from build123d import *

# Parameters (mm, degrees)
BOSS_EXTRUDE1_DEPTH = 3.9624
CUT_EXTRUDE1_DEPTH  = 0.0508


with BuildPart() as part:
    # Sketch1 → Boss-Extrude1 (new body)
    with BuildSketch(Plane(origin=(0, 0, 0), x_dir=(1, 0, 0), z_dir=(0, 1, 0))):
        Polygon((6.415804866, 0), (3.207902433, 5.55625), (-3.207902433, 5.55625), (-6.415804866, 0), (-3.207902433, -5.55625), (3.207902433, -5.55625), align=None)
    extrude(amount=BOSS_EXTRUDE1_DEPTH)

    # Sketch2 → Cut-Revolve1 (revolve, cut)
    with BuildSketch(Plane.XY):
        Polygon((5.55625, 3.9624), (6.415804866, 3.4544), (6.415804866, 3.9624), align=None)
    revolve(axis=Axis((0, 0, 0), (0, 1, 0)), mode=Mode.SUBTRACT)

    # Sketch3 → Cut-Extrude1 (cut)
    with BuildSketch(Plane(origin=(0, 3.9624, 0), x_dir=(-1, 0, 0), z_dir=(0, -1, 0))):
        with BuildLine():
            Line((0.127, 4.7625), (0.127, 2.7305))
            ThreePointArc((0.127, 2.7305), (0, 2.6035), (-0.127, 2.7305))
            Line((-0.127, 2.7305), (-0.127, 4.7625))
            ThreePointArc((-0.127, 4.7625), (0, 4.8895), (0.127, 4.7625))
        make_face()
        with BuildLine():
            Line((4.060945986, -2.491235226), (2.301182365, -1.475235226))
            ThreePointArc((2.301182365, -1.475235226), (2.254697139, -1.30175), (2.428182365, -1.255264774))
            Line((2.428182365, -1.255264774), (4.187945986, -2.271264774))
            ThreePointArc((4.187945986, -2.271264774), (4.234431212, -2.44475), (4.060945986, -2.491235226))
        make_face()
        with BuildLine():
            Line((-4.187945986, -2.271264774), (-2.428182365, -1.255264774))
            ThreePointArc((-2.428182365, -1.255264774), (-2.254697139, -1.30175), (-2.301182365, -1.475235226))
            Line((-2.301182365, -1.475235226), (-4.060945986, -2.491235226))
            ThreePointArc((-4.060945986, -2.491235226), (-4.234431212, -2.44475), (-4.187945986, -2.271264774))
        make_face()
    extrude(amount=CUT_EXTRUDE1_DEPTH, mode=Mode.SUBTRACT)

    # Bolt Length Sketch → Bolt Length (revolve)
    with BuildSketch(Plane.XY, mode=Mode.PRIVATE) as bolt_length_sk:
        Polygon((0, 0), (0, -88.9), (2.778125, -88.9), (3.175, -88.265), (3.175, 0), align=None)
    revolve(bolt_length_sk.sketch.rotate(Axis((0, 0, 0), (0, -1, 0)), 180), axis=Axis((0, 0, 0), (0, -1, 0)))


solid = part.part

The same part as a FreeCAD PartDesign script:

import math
import FreeCAD as App
import Part
import Sketcher

V = App.Vector
Q = App.Units.Quantity


def add_polygon(sketch, points):
    """Adds a closed chain of lines whose ends are joined by coincident constraints."""
    first, n = sketch.GeometryCount, len(points)
    for a, b in zip(points, points[1:] + points[:1]):
        sketch.addGeometry(Part.LineSegment(App.Vector(*a, 0), App.Vector(*b, 0)), False)
    for i in range(n):
        sketch.addConstraint(Sketcher.Constraint("Coincident", first + i, 2, first + (i + 1) % n, 1))

doc = App.newDocument("Part")
body = doc.addObject("PartDesign::Body", "Body")

sketch1 = body.newObject("Sketcher::SketchObject", "Sketch")
sketch1.AttachmentSupport = (doc.getObject("XZ_Plane"), [""])
sketch1.MapMode = "FlatFace"
add_polygon(sketch1, [(6, 0), (3, -6), (-3, -6), (-6, 0), (-3, 6), (3, 6)])
sketch1.addConstraint(Sketcher.Constraint("Horizontal", 1))
sketch1.addConstraint(Sketcher.Constraint("Horizontal", 4))
sketch1.addConstraint(Sketcher.Constraint("Symmetric", 0, 2, 3, 2, -1, 1))
sketch1.addConstraint(Sketcher.Constraint("Symmetric", 2, 2, 5, 2, -1, 1))
sketch1.addConstraint(Sketcher.Constraint("PointOnObject", 2, 2, -1))
sketch1.addConstraint(Sketcher.Constraint("Parallel", 2, 5))
sketch1.addConstraint(Sketcher.Constraint("Vertical", 1, 2, 3, 2))
sketch1.addConstraint(Sketcher.Constraint("Angle", 0, Q("-120 deg")))
sketch1.addConstraint(Sketcher.Constraint("DistanceY", 0, 2, -1, 1, Q("0.21875 in")))
sketch1.addConstraint(Sketcher.Constraint("DistanceX", 1, 2, 1, 1, Q("6.415805 mm")))
pad1 = body.newObject("PartDesign::Pad", "Pad")
pad1.Profile = sketch1
pad1.Length = Q("0.156 in")
pad1.Reversed = True

sketch2 = body.newObject("Sketcher::SketchObject", "Sketch001")
sketch2.AttachmentSupport = (doc.getObject("XY_Plane"), [""])
sketch2.MapMode = "FlatFace"
add_polygon(sketch2, [(5.6, 4), (6.4, 3.5), (6.4, 4)])
sketch2.addConstraint(Sketcher.Constraint("Vertical", 1))
sketch2.addConstraint(Sketcher.Constraint("Horizontal", 2))
sketch2.addConstraint(Sketcher.Constraint("DistanceY", 1, 1, 1, 2, Q("0.02 in")))
sketch2.addConstraint(Sketcher.Constraint("DistanceY", -1, 1, 0, 2, Q("0.136 in")))
sketch2.addConstraint(Sketcher.Constraint("DistanceX", -1, 1, 2, 2, Q("0.21875 in")))
sketch2.addConstraint(Sketcher.Constraint("Distance", 0, Q("0.998448 mm")))
groove = body.newObject("PartDesign::Groove", "Groove")
groove.Profile = sketch2
groove.ReferenceAxis = (sketch2, ["V_Axis"])
groove.Angle = 360

sketch3 = body.newObject("Sketcher::SketchObject", "Sketch002")
sketch3.AttachmentSupport = (doc.getObject("XZ_Plane"), [""])
sketch3.MapMode = "FlatFace"
sketch3.AttachmentOffset = App.Placement(V(0, 0, -0.156 * 25.4), App.Rotation())
sketch3.addGeometry(Part.LineSegment(V(-0.13, -2.73, 0), V(-0.13, -4.76, 0)), False)
sketch3.addGeometry(Part.ArcOfCircle(Part.Circle(V(0, -4.76, 0), V(0, 0, 1), 0.13), math.radians(180), math.radians(360)), False)
sketch3.addGeometry(Part.LineSegment(V(0.13, -4.76, 0), V(0.13, -2.73, 0)), False)
sketch3.addGeometry(Part.ArcOfCircle(Part.Circle(V(0, -2.73, 0), V(0, 0, 1), 0.13), math.radians(0), math.radians(180)), False)
sketch3.addGeometry(Part.LineSegment(V(-2.3, 1.48, 0), V(-4.06, 2.49, 0)), False)
sketch3.addGeometry(Part.ArcOfCircle(Part.Circle(V(-4.12, 2.38, 0), V(0, 0, 1), 0.13), math.radians(60), math.radians(240)), False)
sketch3.addGeometry(Part.LineSegment(V(-4.19, 2.27, 0), V(-2.43, 1.26, 0)), False)
sketch3.addGeometry(Part.ArcOfCircle(Part.Circle(V(-2.36, 1.37, 0), V(0, 0, 1), 0.13), math.radians(-120), math.radians(60)), False)
sketch3.addGeometry(Part.LineSegment(V(2.43, 1.26, 0), V(4.19, 2.27, 0)), False)
sketch3.addGeometry(Part.ArcOfCircle(Part.Circle(V(4.12, 2.38, 0), V(0, 0, 1), 0.13), math.radians(-60), math.radians(120)), False)
sketch3.addGeometry(Part.LineSegment(V(4.06, 2.49, 0), V(2.3, 1.48, 0)), False)
sketch3.addGeometry(Part.ArcOfCircle(Part.Circle(V(2.36, 1.37, 0), V(0, 0, 1), 0.13), math.radians(120), math.radians(300)), False)
sketch3.addConstraint(Sketcher.Constraint("Tangent", 0, 2, 1, 1))
sketch3.addConstraint(Sketcher.Constraint("Tangent", 1, 2, 2, 1))
sketch3.addConstraint(Sketcher.Constraint("Tangent", 2, 2, 3, 1))
sketch3.addConstraint(Sketcher.Constraint("Tangent", 3, 2, 0, 1))
sketch3.addConstraint(Sketcher.Constraint("Tangent", 4, 2, 5, 1))
sketch3.addConstraint(Sketcher.Constraint("Tangent", 5, 2, 6, 1))
sketch3.addConstraint(Sketcher.Constraint("Tangent", 6, 2, 7, 1))
sketch3.addConstraint(Sketcher.Constraint("Tangent", 7, 2, 4, 1))
sketch3.addConstraint(Sketcher.Constraint("Tangent", 8, 2, 9, 1))
sketch3.addConstraint(Sketcher.Constraint("Tangent", 9, 2, 10, 1))
sketch3.addConstraint(Sketcher.Constraint("Tangent", 10, 2, 11, 1))
sketch3.addConstraint(Sketcher.Constraint("Tangent", 11, 2, 8, 1))
sketch3.addConstraint(Sketcher.Constraint("Vertical", 0))
sketch3.addConstraint(Sketcher.Constraint("Vertical", 2))
sketch3.addConstraint(Sketcher.Constraint("Equal", 3, 5))
sketch3.addConstraint(Sketcher.Constraint("Equal", 5, 7))
sketch3.addConstraint(Sketcher.Constraint("Equal", 7, 9))
sketch3.addConstraint(Sketcher.Constraint("Equal", 9, 11))
sketch3.addConstraint(Sketcher.Constraint("Symmetric", 5, 3, 9, 3, -2))
sketch3.addConstraint(Sketcher.Constraint("Symmetric", 7, 3, 11, 3, -2))
sketch3.addConstraint(Sketcher.Constraint("PointOnObject", 1, 3, -2))
sketch3.addConstraint(Sketcher.Constraint("Angle", 4, Q("150 deg")))
sketch3.addConstraint(Sketcher.Constraint("Radius", 1, Q("0.005 in")))
sketch3.addConstraint(Sketcher.Constraint("DistanceY", 0, 2, 0, 1, Q("0.08 in")))
sketch3.addConstraint(Sketcher.Constraint("Distance", 4, Q("0.08 in")))
sketch3.addConstraint(Sketcher.Constraint("DistanceY", 1, 3, -1, 1, Q("0.1875 in")))
sketch3.addConstraint(Sketcher.Constraint("DistanceY", -1, 1, 5, 3, Q("0.09375 in")))
sketch3.addConstraint(Sketcher.Constraint("DistanceX", 7, 3, 9, 3, Q("6.489128 mm")))
pocket1 = body.newObject("PartDesign::Pocket", "Pocket")
pocket1.Profile = sketch3
pocket1.Length = Q("0.002 in")
pocket1.Reversed = True

sketch4 = body.newObject("Sketcher::SketchObject", "Sketch003")
sketch4.AttachmentSupport = (doc.getObject("XY_Plane"), [""])
sketch4.MapMode = "FlatFace"
add_polygon(sketch4, [(0, 0), (0, -88.9), (2.8, -88.9), (3.2, -88.3), (3.2, 0)])
sketch4.addConstraint(Sketcher.Constraint("Vertical", 0))
sketch4.addConstraint(Sketcher.Constraint("Horizontal", 1))
sketch4.addConstraint(Sketcher.Constraint("Vertical", 3))
sketch4.addConstraint(Sketcher.Constraint("Horizontal", 4))
sketch4.addConstraint(Sketcher.Constraint("Coincident", 4, 2, -1, 1))
sketch4.addConstraint(Sketcher.Constraint("DistanceY", 0, 2, 0, 1, Q("3.5 in")))
sketch4.addConstraint(Sketcher.Constraint("DistanceX", 1, 1, 1, 2, Q("0.109375 in")))
sketch4.addConstraint(Sketcher.Constraint("DistanceX", 4, 2, 4, 1, Q("0.125 in")))
sketch4.addConstraint(Sketcher.Constraint("DistanceY", 3, 1, 3, 2, Q("3.475 in")))
revolution = body.newObject("PartDesign::Revolution", "Revolution")
revolution.Profile = sketch4
revolution.ReferenceAxis = (sketch4, ["V_Axis"])
revolution.Angle = 360

doc.recompute()
